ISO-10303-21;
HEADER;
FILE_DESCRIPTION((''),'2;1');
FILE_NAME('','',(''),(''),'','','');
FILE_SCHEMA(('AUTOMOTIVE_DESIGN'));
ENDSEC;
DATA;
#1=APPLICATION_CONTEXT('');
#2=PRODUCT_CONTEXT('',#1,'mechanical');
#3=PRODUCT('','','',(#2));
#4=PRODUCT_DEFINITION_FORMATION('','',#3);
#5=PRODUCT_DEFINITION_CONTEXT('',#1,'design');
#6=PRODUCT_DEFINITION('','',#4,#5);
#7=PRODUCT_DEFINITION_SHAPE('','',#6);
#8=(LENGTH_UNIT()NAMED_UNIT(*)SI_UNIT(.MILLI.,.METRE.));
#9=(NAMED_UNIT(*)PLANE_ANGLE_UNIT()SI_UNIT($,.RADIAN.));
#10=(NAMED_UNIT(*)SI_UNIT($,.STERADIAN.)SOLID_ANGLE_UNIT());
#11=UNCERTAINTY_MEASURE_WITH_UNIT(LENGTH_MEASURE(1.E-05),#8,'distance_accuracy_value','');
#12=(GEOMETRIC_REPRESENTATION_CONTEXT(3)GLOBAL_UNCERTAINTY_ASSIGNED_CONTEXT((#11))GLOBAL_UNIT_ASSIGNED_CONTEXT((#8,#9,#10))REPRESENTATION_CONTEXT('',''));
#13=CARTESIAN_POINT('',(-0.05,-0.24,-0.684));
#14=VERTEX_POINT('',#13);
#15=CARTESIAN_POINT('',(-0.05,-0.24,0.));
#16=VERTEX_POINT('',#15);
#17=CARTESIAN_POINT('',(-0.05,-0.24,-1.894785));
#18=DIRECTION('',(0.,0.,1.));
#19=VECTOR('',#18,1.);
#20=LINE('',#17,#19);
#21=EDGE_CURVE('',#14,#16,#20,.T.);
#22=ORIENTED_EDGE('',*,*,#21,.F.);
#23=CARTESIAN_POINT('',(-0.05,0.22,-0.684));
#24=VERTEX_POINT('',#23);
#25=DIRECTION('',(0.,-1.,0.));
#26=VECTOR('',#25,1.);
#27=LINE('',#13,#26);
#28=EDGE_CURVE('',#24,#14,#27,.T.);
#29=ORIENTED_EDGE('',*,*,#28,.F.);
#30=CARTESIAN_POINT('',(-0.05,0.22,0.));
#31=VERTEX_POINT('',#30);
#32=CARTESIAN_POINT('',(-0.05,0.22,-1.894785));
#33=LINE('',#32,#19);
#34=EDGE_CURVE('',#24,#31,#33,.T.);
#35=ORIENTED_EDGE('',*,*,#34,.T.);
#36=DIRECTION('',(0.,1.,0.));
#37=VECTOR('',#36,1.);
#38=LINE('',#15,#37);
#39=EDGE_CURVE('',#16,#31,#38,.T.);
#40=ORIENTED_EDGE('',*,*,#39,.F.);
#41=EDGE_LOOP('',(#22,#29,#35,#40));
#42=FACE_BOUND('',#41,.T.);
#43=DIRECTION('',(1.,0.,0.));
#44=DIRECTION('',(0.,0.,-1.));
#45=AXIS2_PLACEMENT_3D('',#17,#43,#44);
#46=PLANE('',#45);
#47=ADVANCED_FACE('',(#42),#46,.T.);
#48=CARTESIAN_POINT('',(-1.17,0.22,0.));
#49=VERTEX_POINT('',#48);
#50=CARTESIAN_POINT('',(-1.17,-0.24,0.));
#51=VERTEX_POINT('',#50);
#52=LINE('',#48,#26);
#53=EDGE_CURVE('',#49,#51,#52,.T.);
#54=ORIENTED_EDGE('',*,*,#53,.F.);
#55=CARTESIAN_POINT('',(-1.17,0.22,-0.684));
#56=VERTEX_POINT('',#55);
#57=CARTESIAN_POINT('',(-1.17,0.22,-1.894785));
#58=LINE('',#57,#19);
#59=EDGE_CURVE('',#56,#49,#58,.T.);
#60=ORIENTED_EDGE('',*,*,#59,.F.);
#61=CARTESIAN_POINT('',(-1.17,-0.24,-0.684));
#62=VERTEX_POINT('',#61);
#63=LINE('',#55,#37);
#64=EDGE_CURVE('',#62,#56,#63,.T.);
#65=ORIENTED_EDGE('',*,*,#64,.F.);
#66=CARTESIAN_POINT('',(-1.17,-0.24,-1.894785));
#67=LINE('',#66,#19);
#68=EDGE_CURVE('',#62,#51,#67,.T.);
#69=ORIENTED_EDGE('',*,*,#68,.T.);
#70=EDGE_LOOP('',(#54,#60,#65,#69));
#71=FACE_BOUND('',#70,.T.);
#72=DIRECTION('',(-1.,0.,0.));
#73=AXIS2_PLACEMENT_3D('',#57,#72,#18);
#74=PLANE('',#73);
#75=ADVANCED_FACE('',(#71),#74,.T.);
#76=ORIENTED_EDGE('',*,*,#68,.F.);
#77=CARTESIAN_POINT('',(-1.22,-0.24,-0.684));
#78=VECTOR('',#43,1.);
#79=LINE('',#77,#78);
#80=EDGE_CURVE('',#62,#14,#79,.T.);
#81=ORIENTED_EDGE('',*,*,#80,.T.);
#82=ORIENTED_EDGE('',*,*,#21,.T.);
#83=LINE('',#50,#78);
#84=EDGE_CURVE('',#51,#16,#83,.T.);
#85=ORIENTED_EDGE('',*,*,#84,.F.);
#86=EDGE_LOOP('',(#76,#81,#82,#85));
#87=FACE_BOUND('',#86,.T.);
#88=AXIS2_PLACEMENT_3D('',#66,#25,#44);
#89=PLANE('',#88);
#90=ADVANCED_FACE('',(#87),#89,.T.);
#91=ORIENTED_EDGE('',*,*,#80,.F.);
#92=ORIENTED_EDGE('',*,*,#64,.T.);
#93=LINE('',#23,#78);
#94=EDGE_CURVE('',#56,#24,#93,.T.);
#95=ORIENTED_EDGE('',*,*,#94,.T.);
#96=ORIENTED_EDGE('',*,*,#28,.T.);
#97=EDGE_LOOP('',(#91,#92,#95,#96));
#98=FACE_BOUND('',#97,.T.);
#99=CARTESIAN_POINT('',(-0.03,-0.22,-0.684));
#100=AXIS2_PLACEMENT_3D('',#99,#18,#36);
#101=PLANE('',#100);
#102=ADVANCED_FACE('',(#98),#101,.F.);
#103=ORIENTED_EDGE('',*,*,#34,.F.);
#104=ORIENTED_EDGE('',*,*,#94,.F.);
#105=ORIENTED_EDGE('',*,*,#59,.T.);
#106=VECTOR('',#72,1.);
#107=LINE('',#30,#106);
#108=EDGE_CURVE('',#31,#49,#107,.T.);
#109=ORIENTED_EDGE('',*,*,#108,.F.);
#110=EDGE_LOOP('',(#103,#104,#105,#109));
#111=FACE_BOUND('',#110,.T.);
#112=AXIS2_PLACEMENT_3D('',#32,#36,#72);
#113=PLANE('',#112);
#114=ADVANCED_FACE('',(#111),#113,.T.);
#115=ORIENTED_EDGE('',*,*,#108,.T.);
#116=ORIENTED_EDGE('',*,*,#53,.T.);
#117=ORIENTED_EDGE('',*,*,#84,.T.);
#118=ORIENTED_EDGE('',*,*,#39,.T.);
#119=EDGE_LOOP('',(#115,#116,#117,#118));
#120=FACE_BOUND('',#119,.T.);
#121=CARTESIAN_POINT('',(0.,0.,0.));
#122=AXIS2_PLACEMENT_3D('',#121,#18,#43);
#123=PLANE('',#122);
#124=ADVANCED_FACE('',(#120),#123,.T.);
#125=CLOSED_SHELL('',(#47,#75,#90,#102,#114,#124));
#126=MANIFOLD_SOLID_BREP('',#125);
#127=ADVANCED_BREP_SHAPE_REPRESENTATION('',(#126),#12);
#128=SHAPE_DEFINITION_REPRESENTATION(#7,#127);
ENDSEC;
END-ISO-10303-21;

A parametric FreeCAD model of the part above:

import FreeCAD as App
import Part
import Sketcher

V = App.Vector
Q = App.Units.Quantity


def add_polygon(sketch, points):
    """Adds a closed chain of lines whose ends are joined by coincident constraints."""
    first, n = sketch.GeometryCount, len(points)
    for a, b in zip(points, points[1:] + points[:1]):
        sketch.addGeometry(Part.LineSegment(App.Vector(*a, 0), App.Vector(*b, 0)), False)
    for i in range(n):
        sketch.addConstraint(Sketcher.Constraint("Coincident", first + i, 2, first + (i + 1) % n, 1))

doc = App.newDocument("Part")
body = doc.addObject("PartDesign::Body", "Body")

sketch1 = doc.addObject("Sketcher::SketchObject", "Sketch")
body.addObject(sketch1)
sketch1.AttachmentSupport = (doc.XY_Plane, [""])
sketch1.MapMode = "FlatFace"
add_polygon(sketch1, [(-1.17, 0.22), (-1.17, -0.24), (-0.05, -0.24), (-0.05, 0.22)])
sketch1.addConstraint([
    Sketcher.Constraint("Vertical", 0),
    Sketcher.Constraint("Horizontal", 1),
    Sketcher.Constraint("Vertical", 2),
    Sketcher.Constraint("Horizontal", 3),
    Sketcher.Constraint("DistanceX", 1, 1, 1, 2, Q("1.12 mm")),
    Sketcher.Constraint("DistanceY", 0, 2, 0, 1, Q("0.46 mm")),
    Sketcher.Constraint("DistanceX", 0, 2, -1, 1, Q("1.17 mm")),
    Sketcher.Constraint("DistanceY", 0, 2, -1, 1, Q("0.24 mm")),
])
pad1 = doc.addObject("PartDesign::Pad", "Pad")
body.addObject(pad1)
pad1.Profile = sketch1
pad1.Length = 0.684
pad1.Reversed = True

doc.recompute()
